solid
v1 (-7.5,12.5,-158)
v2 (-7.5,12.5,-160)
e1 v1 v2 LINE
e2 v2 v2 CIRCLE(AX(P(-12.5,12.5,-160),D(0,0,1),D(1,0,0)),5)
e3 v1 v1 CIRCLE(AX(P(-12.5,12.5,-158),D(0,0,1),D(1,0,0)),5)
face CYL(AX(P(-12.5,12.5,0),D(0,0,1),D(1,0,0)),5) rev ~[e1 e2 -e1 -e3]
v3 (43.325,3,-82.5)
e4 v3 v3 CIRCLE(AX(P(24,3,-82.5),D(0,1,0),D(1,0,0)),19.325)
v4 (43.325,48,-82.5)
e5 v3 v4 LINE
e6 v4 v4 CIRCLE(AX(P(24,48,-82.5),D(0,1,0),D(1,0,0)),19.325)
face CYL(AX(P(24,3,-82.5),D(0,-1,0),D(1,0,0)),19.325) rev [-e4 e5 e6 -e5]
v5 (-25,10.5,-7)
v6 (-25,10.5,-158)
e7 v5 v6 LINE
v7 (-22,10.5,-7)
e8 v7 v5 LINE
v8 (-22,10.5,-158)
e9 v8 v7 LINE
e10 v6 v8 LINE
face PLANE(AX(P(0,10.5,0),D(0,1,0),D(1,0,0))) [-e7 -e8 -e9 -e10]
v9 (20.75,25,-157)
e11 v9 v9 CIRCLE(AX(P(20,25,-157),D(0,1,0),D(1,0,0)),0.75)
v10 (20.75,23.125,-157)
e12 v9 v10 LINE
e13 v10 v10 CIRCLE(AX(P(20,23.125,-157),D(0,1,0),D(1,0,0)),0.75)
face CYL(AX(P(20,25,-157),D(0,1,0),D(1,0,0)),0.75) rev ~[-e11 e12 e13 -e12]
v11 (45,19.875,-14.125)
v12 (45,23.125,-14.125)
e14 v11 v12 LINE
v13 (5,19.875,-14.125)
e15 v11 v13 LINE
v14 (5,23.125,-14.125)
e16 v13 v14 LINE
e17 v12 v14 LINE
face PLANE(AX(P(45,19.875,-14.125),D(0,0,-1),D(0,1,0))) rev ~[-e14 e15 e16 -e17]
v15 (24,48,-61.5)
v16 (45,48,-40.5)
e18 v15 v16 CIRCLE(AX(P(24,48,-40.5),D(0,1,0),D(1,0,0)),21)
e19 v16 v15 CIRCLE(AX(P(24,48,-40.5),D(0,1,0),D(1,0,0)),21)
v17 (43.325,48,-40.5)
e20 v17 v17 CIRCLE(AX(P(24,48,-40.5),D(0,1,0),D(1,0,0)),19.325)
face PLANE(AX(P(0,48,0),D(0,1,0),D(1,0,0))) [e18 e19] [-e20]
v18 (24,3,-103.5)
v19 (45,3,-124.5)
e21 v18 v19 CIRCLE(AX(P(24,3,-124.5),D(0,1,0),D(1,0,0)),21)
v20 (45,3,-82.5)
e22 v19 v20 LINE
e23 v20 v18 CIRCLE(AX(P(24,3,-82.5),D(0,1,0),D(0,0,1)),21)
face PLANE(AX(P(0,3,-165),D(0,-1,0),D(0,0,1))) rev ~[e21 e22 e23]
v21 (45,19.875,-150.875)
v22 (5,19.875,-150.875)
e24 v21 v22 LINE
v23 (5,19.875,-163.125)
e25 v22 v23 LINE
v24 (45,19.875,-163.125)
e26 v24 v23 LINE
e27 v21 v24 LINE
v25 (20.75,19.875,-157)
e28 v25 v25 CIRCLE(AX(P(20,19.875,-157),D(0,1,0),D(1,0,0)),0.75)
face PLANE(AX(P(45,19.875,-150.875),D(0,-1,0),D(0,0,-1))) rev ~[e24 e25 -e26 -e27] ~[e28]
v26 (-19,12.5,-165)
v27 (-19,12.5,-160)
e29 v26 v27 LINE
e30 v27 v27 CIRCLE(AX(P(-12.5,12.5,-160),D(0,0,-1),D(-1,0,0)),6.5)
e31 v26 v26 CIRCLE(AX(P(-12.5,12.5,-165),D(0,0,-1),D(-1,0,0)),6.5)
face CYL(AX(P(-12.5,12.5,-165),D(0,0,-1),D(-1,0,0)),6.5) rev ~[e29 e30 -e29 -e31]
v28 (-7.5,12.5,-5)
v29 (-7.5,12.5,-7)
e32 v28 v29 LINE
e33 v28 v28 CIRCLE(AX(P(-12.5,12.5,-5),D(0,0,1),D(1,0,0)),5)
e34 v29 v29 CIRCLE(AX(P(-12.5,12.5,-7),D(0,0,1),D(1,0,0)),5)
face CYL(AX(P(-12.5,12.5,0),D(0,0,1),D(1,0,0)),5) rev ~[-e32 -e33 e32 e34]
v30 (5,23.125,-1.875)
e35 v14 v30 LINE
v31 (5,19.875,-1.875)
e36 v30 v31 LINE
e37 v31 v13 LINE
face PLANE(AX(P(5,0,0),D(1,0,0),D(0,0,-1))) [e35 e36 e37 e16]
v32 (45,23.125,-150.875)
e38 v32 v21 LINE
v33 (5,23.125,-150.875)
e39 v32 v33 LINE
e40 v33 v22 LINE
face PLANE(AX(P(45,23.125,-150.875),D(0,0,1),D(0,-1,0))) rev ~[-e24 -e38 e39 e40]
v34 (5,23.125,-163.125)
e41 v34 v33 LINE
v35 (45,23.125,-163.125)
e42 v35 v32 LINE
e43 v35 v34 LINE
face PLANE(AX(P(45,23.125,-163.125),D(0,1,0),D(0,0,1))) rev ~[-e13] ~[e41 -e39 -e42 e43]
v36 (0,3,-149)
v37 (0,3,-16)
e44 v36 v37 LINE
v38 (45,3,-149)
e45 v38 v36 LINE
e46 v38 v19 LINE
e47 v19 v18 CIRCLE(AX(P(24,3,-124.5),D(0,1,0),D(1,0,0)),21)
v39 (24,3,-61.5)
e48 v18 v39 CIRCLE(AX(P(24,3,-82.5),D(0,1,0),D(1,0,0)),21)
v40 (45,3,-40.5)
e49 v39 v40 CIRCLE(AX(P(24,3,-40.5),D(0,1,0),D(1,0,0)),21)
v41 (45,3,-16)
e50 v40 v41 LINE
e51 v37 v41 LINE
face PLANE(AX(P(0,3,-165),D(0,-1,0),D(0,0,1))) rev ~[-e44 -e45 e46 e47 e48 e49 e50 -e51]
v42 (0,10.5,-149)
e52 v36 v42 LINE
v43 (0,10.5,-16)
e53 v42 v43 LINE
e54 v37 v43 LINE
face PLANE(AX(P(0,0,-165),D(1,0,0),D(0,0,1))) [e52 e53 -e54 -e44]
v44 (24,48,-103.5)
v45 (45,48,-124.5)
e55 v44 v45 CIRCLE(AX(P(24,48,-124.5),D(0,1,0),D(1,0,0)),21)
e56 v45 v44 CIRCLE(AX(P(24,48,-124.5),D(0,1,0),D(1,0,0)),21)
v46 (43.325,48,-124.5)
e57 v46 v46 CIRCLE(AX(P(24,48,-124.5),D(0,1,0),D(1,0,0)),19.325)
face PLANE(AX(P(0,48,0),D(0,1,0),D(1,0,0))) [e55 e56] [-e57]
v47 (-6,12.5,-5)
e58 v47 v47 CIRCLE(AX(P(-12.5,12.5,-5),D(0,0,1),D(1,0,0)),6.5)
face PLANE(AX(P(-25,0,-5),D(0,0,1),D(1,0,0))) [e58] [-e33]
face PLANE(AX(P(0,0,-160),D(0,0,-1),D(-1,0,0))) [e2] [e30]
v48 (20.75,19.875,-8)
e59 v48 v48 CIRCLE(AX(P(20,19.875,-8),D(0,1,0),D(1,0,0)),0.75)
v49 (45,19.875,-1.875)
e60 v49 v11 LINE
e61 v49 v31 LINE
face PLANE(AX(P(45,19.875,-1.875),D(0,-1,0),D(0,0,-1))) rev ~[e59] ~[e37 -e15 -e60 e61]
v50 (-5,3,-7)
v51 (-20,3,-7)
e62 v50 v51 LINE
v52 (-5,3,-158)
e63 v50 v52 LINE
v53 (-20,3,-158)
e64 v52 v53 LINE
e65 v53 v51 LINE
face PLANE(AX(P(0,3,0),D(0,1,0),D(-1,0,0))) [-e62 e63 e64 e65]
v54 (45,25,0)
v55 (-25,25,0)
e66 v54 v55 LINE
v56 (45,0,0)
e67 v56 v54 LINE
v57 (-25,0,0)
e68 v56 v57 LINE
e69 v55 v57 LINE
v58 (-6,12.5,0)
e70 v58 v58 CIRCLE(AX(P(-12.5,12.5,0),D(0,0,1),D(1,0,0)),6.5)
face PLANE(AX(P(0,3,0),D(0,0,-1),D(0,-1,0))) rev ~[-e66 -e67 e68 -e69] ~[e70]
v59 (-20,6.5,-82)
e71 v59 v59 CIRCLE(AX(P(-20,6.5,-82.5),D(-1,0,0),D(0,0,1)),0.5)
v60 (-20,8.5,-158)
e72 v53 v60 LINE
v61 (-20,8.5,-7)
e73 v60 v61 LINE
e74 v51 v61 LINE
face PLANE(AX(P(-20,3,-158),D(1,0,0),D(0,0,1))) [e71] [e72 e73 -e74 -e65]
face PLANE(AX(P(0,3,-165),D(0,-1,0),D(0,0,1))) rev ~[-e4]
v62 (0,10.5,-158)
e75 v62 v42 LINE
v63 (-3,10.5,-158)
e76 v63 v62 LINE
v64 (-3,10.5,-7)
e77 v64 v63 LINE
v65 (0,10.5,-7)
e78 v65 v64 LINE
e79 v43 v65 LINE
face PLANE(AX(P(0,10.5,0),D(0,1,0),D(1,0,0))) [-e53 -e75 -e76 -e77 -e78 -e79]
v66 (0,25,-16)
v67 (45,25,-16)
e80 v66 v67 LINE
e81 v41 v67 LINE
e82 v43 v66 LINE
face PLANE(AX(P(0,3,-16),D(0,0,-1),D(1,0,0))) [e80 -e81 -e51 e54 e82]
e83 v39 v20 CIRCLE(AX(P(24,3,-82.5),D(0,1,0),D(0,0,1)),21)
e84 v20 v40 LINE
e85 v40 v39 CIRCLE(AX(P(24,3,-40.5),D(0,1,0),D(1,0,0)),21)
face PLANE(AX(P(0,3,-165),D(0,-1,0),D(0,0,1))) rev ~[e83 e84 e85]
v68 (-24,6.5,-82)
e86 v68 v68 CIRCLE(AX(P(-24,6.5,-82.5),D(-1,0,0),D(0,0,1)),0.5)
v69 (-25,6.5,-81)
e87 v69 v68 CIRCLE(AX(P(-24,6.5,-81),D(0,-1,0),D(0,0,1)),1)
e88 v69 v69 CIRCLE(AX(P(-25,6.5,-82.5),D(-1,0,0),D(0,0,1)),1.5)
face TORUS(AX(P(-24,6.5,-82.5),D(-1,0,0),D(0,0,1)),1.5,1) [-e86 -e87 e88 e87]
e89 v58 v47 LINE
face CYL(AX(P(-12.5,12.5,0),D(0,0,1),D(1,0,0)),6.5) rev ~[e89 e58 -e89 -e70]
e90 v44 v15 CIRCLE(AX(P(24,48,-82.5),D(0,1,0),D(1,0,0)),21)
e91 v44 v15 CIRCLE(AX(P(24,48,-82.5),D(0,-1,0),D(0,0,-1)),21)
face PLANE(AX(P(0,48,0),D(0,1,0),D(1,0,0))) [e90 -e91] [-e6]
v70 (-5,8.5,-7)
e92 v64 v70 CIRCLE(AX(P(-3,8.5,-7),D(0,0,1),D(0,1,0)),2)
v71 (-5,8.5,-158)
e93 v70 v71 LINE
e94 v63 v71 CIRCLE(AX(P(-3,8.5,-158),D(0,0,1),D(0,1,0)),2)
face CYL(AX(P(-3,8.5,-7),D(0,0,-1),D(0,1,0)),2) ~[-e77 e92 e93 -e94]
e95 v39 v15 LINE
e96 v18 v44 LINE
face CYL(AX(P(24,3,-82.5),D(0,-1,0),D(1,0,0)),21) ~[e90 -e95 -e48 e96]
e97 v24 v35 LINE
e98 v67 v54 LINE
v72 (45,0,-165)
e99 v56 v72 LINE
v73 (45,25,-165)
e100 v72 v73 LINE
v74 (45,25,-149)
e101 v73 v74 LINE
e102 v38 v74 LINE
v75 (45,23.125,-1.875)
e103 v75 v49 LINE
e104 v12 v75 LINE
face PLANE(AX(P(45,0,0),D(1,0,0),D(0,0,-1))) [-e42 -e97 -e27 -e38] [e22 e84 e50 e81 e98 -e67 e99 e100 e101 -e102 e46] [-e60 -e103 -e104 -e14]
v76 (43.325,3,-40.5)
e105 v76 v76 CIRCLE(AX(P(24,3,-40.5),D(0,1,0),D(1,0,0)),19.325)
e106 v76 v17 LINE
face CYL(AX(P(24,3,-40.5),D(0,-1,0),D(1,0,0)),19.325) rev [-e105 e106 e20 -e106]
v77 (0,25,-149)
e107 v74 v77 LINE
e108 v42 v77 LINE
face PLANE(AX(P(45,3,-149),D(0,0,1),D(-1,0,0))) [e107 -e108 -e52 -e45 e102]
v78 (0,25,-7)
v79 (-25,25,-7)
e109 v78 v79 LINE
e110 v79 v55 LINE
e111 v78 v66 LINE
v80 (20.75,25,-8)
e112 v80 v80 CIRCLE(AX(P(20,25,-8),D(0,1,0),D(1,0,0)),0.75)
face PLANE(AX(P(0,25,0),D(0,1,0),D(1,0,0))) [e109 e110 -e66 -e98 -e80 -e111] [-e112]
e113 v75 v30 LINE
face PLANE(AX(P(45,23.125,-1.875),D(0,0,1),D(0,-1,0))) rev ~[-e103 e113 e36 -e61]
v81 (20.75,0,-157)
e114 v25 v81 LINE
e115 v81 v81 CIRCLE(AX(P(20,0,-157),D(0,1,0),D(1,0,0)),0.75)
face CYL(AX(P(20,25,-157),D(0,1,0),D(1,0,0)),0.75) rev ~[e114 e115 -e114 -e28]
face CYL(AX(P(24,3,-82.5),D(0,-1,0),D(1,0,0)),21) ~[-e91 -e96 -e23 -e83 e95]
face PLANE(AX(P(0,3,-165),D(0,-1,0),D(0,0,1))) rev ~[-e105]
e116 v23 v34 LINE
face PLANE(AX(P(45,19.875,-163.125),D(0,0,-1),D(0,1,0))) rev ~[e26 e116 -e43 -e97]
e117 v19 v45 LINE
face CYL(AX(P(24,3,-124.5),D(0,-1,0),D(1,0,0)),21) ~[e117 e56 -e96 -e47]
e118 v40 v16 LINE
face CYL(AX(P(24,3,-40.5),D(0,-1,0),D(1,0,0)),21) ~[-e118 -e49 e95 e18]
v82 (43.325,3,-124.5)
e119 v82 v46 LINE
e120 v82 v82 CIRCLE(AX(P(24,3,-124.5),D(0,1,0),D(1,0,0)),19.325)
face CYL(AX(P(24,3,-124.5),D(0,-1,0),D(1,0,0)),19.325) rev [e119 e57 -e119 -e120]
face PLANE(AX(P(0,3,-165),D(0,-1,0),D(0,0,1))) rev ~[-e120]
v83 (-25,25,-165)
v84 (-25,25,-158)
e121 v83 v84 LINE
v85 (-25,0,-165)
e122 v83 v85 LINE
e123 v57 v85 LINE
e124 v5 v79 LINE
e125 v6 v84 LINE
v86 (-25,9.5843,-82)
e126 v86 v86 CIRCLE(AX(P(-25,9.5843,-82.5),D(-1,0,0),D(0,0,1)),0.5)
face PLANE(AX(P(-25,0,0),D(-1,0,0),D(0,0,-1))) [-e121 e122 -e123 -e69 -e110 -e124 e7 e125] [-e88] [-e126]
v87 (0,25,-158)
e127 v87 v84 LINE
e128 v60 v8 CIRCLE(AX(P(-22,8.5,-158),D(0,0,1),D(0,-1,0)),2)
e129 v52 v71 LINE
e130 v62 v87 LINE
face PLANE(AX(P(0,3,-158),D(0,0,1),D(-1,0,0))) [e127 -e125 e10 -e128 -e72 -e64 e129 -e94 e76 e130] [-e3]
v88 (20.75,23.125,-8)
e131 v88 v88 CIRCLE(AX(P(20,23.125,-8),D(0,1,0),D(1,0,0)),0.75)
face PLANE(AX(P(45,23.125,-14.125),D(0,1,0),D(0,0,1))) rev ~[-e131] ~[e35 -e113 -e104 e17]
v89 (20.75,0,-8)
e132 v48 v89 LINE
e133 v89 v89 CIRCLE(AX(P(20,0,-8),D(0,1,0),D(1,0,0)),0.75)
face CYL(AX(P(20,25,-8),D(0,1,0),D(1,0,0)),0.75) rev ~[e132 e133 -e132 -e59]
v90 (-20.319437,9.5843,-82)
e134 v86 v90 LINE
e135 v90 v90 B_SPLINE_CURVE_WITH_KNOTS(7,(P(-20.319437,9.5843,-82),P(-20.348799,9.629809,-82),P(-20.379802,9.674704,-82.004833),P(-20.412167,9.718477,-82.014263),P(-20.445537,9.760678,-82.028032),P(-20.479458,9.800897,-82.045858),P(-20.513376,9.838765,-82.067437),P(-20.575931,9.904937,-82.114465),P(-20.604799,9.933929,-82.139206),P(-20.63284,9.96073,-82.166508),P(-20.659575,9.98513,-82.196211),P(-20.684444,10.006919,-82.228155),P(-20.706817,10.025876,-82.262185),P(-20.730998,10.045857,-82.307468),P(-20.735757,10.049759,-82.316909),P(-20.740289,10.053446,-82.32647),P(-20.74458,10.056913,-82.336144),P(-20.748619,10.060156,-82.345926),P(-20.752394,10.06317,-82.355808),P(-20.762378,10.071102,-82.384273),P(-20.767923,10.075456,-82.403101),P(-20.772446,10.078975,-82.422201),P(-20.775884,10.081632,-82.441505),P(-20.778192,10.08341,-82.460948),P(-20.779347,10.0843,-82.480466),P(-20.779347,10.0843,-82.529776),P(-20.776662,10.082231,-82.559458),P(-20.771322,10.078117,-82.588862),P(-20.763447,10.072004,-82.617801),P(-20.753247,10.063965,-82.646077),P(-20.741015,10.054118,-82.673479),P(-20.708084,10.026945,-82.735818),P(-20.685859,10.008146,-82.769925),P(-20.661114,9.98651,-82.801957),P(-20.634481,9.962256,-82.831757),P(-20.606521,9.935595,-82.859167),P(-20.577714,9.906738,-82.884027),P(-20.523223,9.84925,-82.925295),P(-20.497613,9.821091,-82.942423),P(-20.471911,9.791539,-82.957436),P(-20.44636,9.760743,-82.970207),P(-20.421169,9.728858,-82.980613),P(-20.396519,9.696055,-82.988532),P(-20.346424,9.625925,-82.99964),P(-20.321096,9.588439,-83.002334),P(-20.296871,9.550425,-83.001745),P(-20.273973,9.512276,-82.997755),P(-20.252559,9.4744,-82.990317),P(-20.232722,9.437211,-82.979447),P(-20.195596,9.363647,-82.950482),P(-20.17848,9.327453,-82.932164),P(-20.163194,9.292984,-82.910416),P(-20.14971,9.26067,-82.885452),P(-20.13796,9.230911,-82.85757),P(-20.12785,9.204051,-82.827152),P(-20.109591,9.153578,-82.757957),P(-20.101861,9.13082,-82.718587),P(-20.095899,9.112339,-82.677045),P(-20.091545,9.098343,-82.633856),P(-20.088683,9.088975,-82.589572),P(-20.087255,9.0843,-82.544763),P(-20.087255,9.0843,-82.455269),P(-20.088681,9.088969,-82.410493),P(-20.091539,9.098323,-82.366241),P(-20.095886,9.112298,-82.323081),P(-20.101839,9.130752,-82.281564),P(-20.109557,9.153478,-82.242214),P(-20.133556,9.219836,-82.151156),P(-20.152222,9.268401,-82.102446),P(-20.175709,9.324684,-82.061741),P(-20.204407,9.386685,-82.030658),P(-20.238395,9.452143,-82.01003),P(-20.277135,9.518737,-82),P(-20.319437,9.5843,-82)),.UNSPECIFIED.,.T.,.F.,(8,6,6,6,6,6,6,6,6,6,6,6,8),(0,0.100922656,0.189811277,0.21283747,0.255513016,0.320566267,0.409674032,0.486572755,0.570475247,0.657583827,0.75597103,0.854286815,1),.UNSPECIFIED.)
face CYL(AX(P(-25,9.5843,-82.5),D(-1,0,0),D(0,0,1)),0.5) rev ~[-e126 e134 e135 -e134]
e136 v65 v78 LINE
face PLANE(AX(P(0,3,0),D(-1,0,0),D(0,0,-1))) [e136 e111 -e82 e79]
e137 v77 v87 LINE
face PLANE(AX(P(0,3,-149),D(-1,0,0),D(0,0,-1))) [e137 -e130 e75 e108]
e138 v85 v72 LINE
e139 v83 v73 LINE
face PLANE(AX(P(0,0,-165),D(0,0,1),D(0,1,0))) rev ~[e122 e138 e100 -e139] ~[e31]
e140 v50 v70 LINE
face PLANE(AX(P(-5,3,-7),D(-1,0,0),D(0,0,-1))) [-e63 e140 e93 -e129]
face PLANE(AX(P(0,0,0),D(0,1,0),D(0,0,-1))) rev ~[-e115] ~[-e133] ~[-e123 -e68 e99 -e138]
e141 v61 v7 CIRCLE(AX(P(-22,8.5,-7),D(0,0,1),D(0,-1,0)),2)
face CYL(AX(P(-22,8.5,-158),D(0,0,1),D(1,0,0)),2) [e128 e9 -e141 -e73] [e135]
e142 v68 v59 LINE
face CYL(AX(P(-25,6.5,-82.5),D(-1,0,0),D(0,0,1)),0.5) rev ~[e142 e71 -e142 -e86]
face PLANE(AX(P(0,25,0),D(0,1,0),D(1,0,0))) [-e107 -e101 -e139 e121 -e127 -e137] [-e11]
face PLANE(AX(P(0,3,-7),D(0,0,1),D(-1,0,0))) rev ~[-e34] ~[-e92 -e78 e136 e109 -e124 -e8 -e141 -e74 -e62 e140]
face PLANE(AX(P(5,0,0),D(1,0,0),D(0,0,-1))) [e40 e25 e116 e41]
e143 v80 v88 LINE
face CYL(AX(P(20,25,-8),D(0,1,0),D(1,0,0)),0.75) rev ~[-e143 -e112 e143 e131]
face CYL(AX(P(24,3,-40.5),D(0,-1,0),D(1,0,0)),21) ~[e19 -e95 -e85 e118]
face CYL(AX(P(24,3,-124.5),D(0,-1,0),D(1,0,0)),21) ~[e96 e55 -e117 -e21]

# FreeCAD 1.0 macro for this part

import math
import FreeCAD as App
import Part
import Sketcher
from FreeCAD import Vector


def edges_at(feature, points):
    """Names of the edges that pass closest to the given points."""
    edges = feature.Shape.Edges
    near = lambda p: min(range(len(edges)), key=lambda i: edges[i].distToShape(Part.Vertex(*p))[0])
    return sorted({f"Edge{near(p) + 1}" for p in points})

doc = App.newDocument("Part")
params = doc.addObject("Spreadsheet::Sheet", "Params")
for row, (alias, value) in enumerate([
    ("sketch1_width", "25 mm"),
    ("sketch1_height", "165 mm"),
    ("pad1_length", "3 mm"),
    ("sketch2_height", "7 mm"),
    ("sketch2_width", "25 mm"),
    ("pad2_length", "22 mm"),
    ("sketch3_diameter", "13 mm"),
    ("pocket1_length", "5 mm"),
    ("sketch4_diameter", "13 mm"),
    ("pocket2_length", "5 mm"),
    ("sketch5_diameter", "10 mm"),
    ("pocket3_length", "165 mm"),
    ("sketch6_width", "5 mm"),
    ("sketch6_height", "151 mm"),
    ("pad3_length", "7.5 mm"),
    ("fillet_radius", "2 mm"),
    ("sketch7_width", "3 mm"),
    ("sketch7_height", "165 mm"),
    ("pad4_length", "45 mm"),
    ("sketch8_diameter", "42 mm"),
    ("sketch8_diameter2", "38.65 mm"),
    ("pad5_length", "45 mm"),
    ("sketch9_height", "16 mm"),
    ("sketch9_width", "45 mm"),
    ("pad6_length", "22 mm"),
    ("sketch10_width", "3.25 mm"),
    ("sketch10_height", "12.25 mm"),
    ("pocket4_length", "40 mm"),
    ("sketch11_width", "3.25 mm"),
    ("sketch11_height", "12.25 mm"),
    ("pocket5_length", "40 mm"),
    ("sketch12_diameter", "1.5 mm"),
    ("pocket6_length", "25 mm"),
    ("sketch13_diameter", "1.5 mm"),
    ("pocket7_length", "25 mm"),
    ("sketch14_diameter", "1 mm"),
    ("pocket8_length", "5.25 mm"),
    ("fillet2_radius", "1 mm"),
    ("sketch15_diameter", "1 mm"),
    ("pocket9_length", "5.25 mm"),
], start=1):
    params.set(f"A{row}", alias)
    params.set(f"B{row}", "=" + value)
    params.setAlias(f"B{row}", alias)

body = doc.addObject("PartDesign::Body", "Body")

# Sketch on XZ plane
sketch1 = body.newObject("Sketcher::SketchObject", "Sketch")
sketch1.AttachmentSupport = (doc.getObject("XZ_Plane"), [""])
sketch1.MapMode = "FlatFace"
sketch1.addGeometry([
    Part.LineSegment(Vector(-25, 0, 0), Vector(0, 0, 0)),
    Part.LineSegment(Vector(0, 0, 0), Vector(0, -165, 0)),
    Part.LineSegment(Vector(0, -165, 0), Vector(-25, -165, 0)),
    Part.LineSegment(Vector(-25, -165, 0), Vector(-25, 0, 0)),
], False)
sketch1.addConstraint([
    Sketcher.Constraint("Coincident", 0, 2, 1, 1),
    Sketcher.Constraint("Coincident", 1, 2, 2, 1),
    Sketcher.Constraint("Coincident", 2, 2, 3, 1),
    Sketcher.Constraint("Coincident", 3, 2, 0, 1),
    Sketcher.Constraint("Horizontal", 0),
    Sketcher.Constraint("Vertical", 1),
    Sketcher.Constraint("Horizontal", 2),
    Sketcher.Constraint("Vertical", 3),
    Sketcher.Constraint("Coincident", 0, 2, -1, 1),
    Sketcher.Constraint("DistanceX", 0, 1, 0, 2, 25.0),
    Sketcher.Constraint("DistanceY", 1, 2, 1, 1, 165.0),
])
sketch1.setExpression("Constraints[9]", "Params.sketch1_width")
sketch1.setExpression("Constraints[10]", "Params.sketch1_height")
pad1 = body.newObject("PartDesign::Pad", "Pad")
pad1.Profile = sketch1
pad1.setExpression("Length", "Params.pad1_length")
pad1.Reversed = True

# Sketch on XZ plane
sketch2 = body.newObject("Sketcher::SketchObject", "Sketch001")
sketch2.AttachmentSupport = (doc.getObject("XZ_Plane"), [""])
sketch2.MapMode = "FlatFace"
sketch2.AttachmentOffset = App.Placement(Vector(0, 0, -3), App.Rotation())
sketch2.addGeometry([
    Part.LineSegment(Vector(0, -165, 0), Vector(-25, -165, 0)),  # 0
    Part.LineSegment(Vector(-25, -165, 0), Vector(-25, -158, 0)),  # 1
    Part.LineSegment(Vector(-25, -158, 0), Vector(0, -158, 0)),  # 2
    Part.LineSegment(Vector(0, -158, 0), Vector(0, -165, 0)),  # 3
    Part.LineSegment(Vector(0, -7, 0), Vector(-25, -7, 0)),  # 4
    Part.LineSegment(Vector(-25, -7, 0), Vector(-25, 0, 0)),  # 5
    Part.LineSegment(Vector(-25, 0, 0), Vector(0, 0, 0)),  # 6
    Part.LineSegment(Vector(0, 0, 0), Vector(0, -7, 0)),  # 7
], False)
sketch2.addConstraint([
    Sketcher.Constraint("Coincident", 0, 2, 1, 1),
    Sketcher.Constraint("Coincident", 1, 2, 2, 1),
    Sketcher.Constraint("Coincident", 2, 2, 3, 1),
    Sketcher.Constraint("Coincident", 3, 2, 0, 1),
    Sketcher.Constraint("Coincident", 4, 2, 5, 1),
    Sketcher.Constraint("Coincident", 5, 2, 6, 1),
    Sketcher.Constraint("Coincident", 6, 2, 7, 1),
    Sketcher.Constraint("Coincident", 7, 2, 4, 1),
    Sketcher.Constraint("Horizontal", 0),
    Sketcher.Constraint("Vertical", 1),
    Sketcher.Constraint("Horizontal", 2),
    Sketcher.Constraint("Vertical", 3),
    Sketcher.Constraint("Horizontal", 4),
    Sketcher.Constraint("Vertical", 5),
    Sketcher.Constraint("Horizontal", 6),
    Sketcher.Constraint("Vertical", 7),
    Sketcher.Constraint("Coincident", 6, 2, -1, 1),
    Sketcher.Constraint("PointOnObject", 2, 2, -2),
    Sketcher.Constraint("Vertical", 1, 2, 4, 2),
    Sketcher.Constraint("Equal", 3, 5),
    Sketcher.Constraint("DistanceY", 1, 1, 1, 2, 7.0),
    Sketcher.Constraint("DistanceX", 0, 2, 0, 1, 25.0),
    Sketcher.Constraint("DistanceY", 0, 2, -1, 1, 165.0),
])
sketch2.setExpression("Constraints[20]", "Params.sketch2_height")
sketch2.setExpression("Constraints[21]", "Params.sketch2_width")
pad2 = body.newObject("PartDesign::Pad", "Pad001")
pad2.Profile = sketch2
pad2.setExpression("Length", "Params.pad2_length")
pad2.Reversed = True

# Sketch on XY plane
sketch3 = body.newObject("Sketcher::SketchObject", "Sketch002")
sketch3.AttachmentSupport = (doc.getObject("XY_Plane"), [""])
sketch3.MapMode = "FlatFace"
sketch3.addGeometry(Part.Circle(Vector(-12, 12, 0), Vector(0, 0, 1), 6), False)
sketch3.addConstraint([
    Sketcher.Constraint("Diameter", 0, 13.0),
    Sketcher.Constraint("DistanceX", 0, 3, -1, 1, 12.5),
    Sketcher.Constraint("DistanceY", -1, 1, 0, 3, 12.5),
])
sketch3.setExpression("Constraints[0]", "Params.sketch3_diameter")
pocket1 = body.newObject("PartDesign::Pocket", "Pocket")
pocket1.Profile = sketch3
pocket1.setExpression("Length", "Params.pocket1_length")

# Sketch on XY plane
sketch4 = body.newObject("Sketcher::SketchObject", "Sketch003")
sketch4.AttachmentSupport = (doc.getObject("XY_Plane"), [""])
sketch4.MapMode = "FlatFace"
sketch4.AttachmentOffset = App.Placement(Vector(0, 0, -165), App.Rotation())
sketch4.addGeometry(Part.Circle(Vector(-12, 12, 0), Vector(0, 0, 1), 6), False)
sketch4.addConstraint([
    Sketcher.Constraint("Diameter", 0, 13.0),
    Sketcher.Constraint("DistanceX", 0, 3, -1, 1, 12.5),
    Sketcher.Constraint("DistanceY", -1, 1, 0, 3, 12.5),
])
sketch4.setExpression("Constraints[0]", "Params.sketch4_diameter")
pocket2 = body.newObject("PartDesign::Pocket", "Pocket001")
pocket2.Profile = sketch4
pocket2.setExpression("Length", "Params.pocket2_length")
pocket2.Reversed = True

# Sketch on XY plane
sketch5 = body.newObject("Sketcher::SketchObject", "Sketch004")
sketch5.AttachmentSupport = (doc.getObject("XY_Plane"), [""])
sketch5.MapMode = "FlatFace"
sketch5.addGeometry(Part.Circle(Vector(-12, 12, 0), Vector(0, 0, 1), 5), False)
sketch5.addConstraint([
    Sketcher.Constraint("Diameter", 0, 10.0),
    Sketcher.Constraint("DistanceX", 0, 3, -1, 1, 12.5),
    Sketcher.Constraint("DistanceY", -1, 1, 0, 3, 12.5),
])
sketch5.setExpression("Constraints[0]", "Params.sketch5_diameter")
pocket3 = body.newObject("PartDesign::Pocket", "Pocket002")
pocket3.Profile = sketch5
pocket3.setExpression("Length", "Params.pocket3_length")

# Sketch on XZ plane
sketch6 = body.newObject("Sketcher::SketchObject", "Sketch005")
sketch6.AttachmentSupport = (doc.getObject("XZ_Plane"), [""])
sketch6.MapMode = "FlatFace"
sketch6.AttachmentOffset = App.Placement(Vector(0, 0, -3), App.Rotation())
sketch6.addGeometry([
    Part.LineSegment(Vector(-20, -158, 0), Vector(-25, -158, 0)),  # 0
    Part.LineSegment(Vector(-25, -158, 0), Vector(-25, -7, 0)),  # 1
    Part.LineSegment(Vector(-25, -7, 0), Vector(-20, -7, 0)),  # 2
    Part.LineSegment(Vector(-20, -7, 0), Vector(-20, -158, 0)),  # 3
    Part.LineSegment(Vector(0, -158, 0), Vector(-5, -158, 0)),  # 4
    Part.LineSegment(Vector(-5, -158, 0), Vector(-5, -7, 0)),  # 5
    Part.LineSegment(Vector(-5, -7, 0), Vector(0, -7, 0)),  # 6
    Part.LineSegment(Vector(0, -7, 0), Vector(0, -158, 0)),  # 7
], False)
sketch6.addConstraint([
    Sketcher.Constraint("Coincident", 0, 2, 1, 1),
    Sketcher.Constraint("Coincident", 1, 2, 2, 1),
    Sketcher.Constraint("Coincident", 2, 2, 3, 1),
    Sketcher.Constraint("Coincident", 3, 2, 0, 1),
    Sketcher.Constraint("Coincident", 4, 2, 5, 1),
    Sketcher.Constraint("Coincident", 5, 2, 6, 1),
    Sketcher.Constraint("Coincident", 6, 2, 7, 1),
    Sketcher.Constraint("Coincident", 7, 2, 4, 1),
    Sketcher.Constraint("Horizontal", 0),
    Sketcher.Constraint("Vertical", 1),
    Sketcher.Constraint("Horizontal", 2),
    Sketcher.Constraint("Vertical", 3),
    Sketcher.Constraint("Horizontal", 4),
    Sketcher.Constraint("Vertical", 5),
    Sketcher.Constraint("Horizontal", 6),
    Sketcher.Constraint("Vertical", 7),
    Sketcher.Constraint("PointOnObject", 6, 2, -2),
    Sketcher.Constraint("Horizontal", 3, 2, 4, 2),
    Sketcher.Constraint("Horizontal", 2, 2, 5, 2),
    Sketcher.Constraint("Equal", 2, 4),
    Sketcher.Constraint("DistanceX", 0, 2, 0, 1, 5.0),
    Sketcher.Constraint("DistanceY", 1, 1, 1, 2, 151.0),
    Sketcher.Constraint("DistanceX", 0, 2, -1, 1, 25.0),
    Sketcher.Constraint("DistanceY", 0, 2, -1, 1, 158.0),
])
sketch6.setExpression("Constraints[20]", "Params.sketch6_width")
sketch6.setExpression("Constraints[21]", "Params.sketch6_height")
pad3 = body.newObject("PartDesign::Pad", "Pad002")
pad3.Profile = sketch6
pad3.setExpression("Length", "Params.pad3_length")
pad3.Reversed = True
doc.recompute()

fillet = body.newObject("PartDesign::Fillet", "Fillet")
fillet.Base = (pad3, edges_at(pad3, [(-5, 10.5, -82.5), (-20, 10.5, -82.5)]))
fillet.setExpression("Radius", "Params.fillet_radius")

# Sketch on YZ plane
sketch7 = body.newObject("Sketcher::SketchObject", "Sketch006")
sketch7.AttachmentSupport = (doc.getObject("YZ_Plane"), [""])
sketch7.MapMode = "FlatFace"
sketch7.addGeometry([
    Part.LineSegment(Vector(0, 0, 0), Vector(0, -165, 0)),
    Part.LineSegment(Vector(0, -165, 0), Vector(3, -165, 0)),
    Part.LineSegment(Vector(3, -165, 0), Vector(3, 0, 0)),
    Part.LineSegment(Vector(3, 0, 0), Vector(0, 0, 0)),
], False)
sketch7.addConstraint([
    Sketcher.Constraint("Coincident", 0, 2, 1, 1),
    Sketcher.Constraint("Coincident", 1, 2, 2, 1),
    Sketcher.Constraint("Coincident", 2, 2, 3, 1),
    Sketcher.Constraint("Coincident", 3, 2, 0, 1),
    Sketcher.Constraint("Vertical", 0),
    Sketcher.Constraint("Horizontal", 1),
    Sketcher.Constraint("Vertical", 2),
    Sketcher.Constraint("Horizontal", 3),
    Sketcher.Constraint("Coincident", 3, 2, -1, 1),
    Sketcher.Constraint("DistanceX", 1, 1, 1, 2, 3.0),
    Sketcher.Constraint("DistanceY", 0, 2, 0, 1, 165.0),
])
sketch7.setExpression("Constraints[9]", "Params.sketch7_width")
sketch7.setExpression("Constraints[10]", "Params.sketch7_height")
pad4 = body.newObject("PartDesign::Pad", "Pad003")
pad4.Profile = sketch7
pad4.setExpression("Length", "Params.pad4_length")

# Sketch on XZ plane
sketch8 = body.newObject("Sketcher::SketchObject", "Sketch007")
sketch8.AttachmentSupport = (doc.getObject("XZ_Plane"), [""])
sketch8.MapMode = "FlatFace"
sketch8.AttachmentOffset = App.Placement(Vector(0, 0, -3), App.Rotation())
sketch8.addGeometry([
    Part.Circle(Vector(24, -124, 0), Vector(0, 0, 1), 21),  # 0
    Part.Circle(Vector(24, -124, 0), Vector(0, 0, 1), 19),  # 1
    Part.Circle(Vector(24, -40, 0), Vector(0, 0, 1), 21),  # 2
    Part.Circle(Vector(24, -40, 0), Vector(0, 0, 1), 19),  # 3
    Part.ArcOfCircle(Part.Circle(Vector(24, -82, 0), Vector(0, 0, 1), 21), math.radians(-90), math.radians(90)),  # 4
    Part.ArcOfCircle(Part.Circle(Vector(24, -82, 0), Vector(0, 0, 1), 21), math.radians(90), math.radians(270)),  # 5
    Part.Circle(Vector(24, -82, 0), Vector(0, 0, 1), 19),  # 6
], False)
sketch8.addConstraint([
    Sketcher.Constraint("Tangent", 4, 1, 5, 2),
    Sketcher.Constraint("Coincident", 5, 1, 4, 2),
    Sketcher.Constraint("Coincident", 1, 3, 0, 3),
    Sketcher.Constraint("Coincident", 3, 3, 2, 3),
    Sketcher.Constraint("Coincident", 6, 3, 4, 3),
    Sketcher.Constraint("Equal", 0, 2),
    Sketcher.Constraint("Equal", 1, 3),
    Sketcher.Constraint("Equal", 2, 4),
    Sketcher.Constraint("Equal", 3, 6),
    Sketcher.Constraint("Vertical", 1, 3, 2, 3),
    Sketcher.Constraint("Vertical", 3, 3, 4, 3),
    Sketcher.Constraint("Vertical", 6, 3, 4, 1),
    Sketcher.Constraint("Vertical", 4, 1, 5, 1),
    Sketcher.Constraint("Diameter", 0, 42.0),
    Sketcher.Constraint("Diameter", 1, 38.65),
    Sketcher.Constraint("DistanceY", 0, 3, 4, 3, 42.0),
    Sketcher.Constraint("DistanceY", 4, 3, 2, 3, 42.0),
    Sketcher.Constraint("DistanceX", -1, 1, 0, 3, 24.0),
    Sketcher.Constraint("DistanceY", 0, 3, -1, 1, 124.5),
])
sketch8.setExpression("Constraints[13]", "Params.sketch8_diameter")
sketch8.setExpression("Constraints[14]", "Params.sketch8_diameter2")
pad5 = body.newObject("PartDesign::Pad", "Pad004")
pad5.Profile = sketch8
pad5.setExpression("Length", "Params.pad5_length")
pad5.Reversed = True

# Sketch on XZ plane
sketch9 = body.newObject("Sketcher::SketchObject", "Sketch008")
sketch9.AttachmentSupport = (doc.getObject("XZ_Plane"), [""])
sketch9.MapMode = "FlatFace"
sketch9.AttachmentOffset = App.Placement(Vector(0, 0, -3), App.Rotation())
sketch9.addGeometry([
    Part.LineSegment(Vector(0, -165, 0), Vector(0, -149, 0)),  # 0
    Part.LineSegment(Vector(0, -149, 0), Vector(45, -149, 0)),  # 1
    Part.LineSegment(Vector(45, -149, 0), Vector(45, -165, 0)),  # 2
    Part.LineSegment(Vector(45, -165, 0), Vector(0, -165, 0)),  # 3
    Part.LineSegment(Vector(45, 0, 0), Vector(45, -16, 0)),  # 4
    Part.LineSegment(Vector(45, -16, 0), Vector(0, -16, 0)),  # 5
    Part.LineSegment(Vector(0, -16, 0), Vector(0, 0, 0)),  # 6
    Part.LineSegment(Vector(0, 0, 0), Vector(45, 0, 0)),  # 7
], False)
sketch9.addConstraint([
    Sketcher.Constraint("Coincident", 0, 2, 1, 1),
    Sketcher.Constraint("Coincident", 1, 2, 2, 1),
    Sketcher.Constraint("Coincident", 2, 2, 3, 1),
    Sketcher.Constraint("Coincident", 3, 2, 0, 1),
    Sketcher.Constraint("Coincident", 4, 2, 5, 1),
    Sketcher.Constraint("Coincident", 5, 2, 6, 1),
    Sketcher.Constraint("Coincident", 6, 2, 7, 1),
    Sketcher.Constraint("Coincident", 7, 2, 4, 1),
    Sketcher.Constraint("Vertical", 0),
    Sketcher.Constraint("Horizontal", 1),
    Sketcher.Constraint("Vertical", 2),
    Sketcher.Constraint("Horizontal", 3),
    Sketcher.Constraint("Vertical", 4),
    Sketcher.Constraint("Horizontal", 5),
    Sketcher.Constraint("Vertical", 6),
    Sketcher.Constraint("Horizontal", 7),
    Sketcher.Constraint("Coincident", 6, 2, -1, 1),
    Sketcher.Constraint("PointOnObject", 0, 2, -2),
    Sketcher.Constraint("Vertical", 2, 2, 4, 2),
    Sketcher.Constraint("Equal", 2, 4),
    Sketcher.Constraint("DistanceY", 0, 1, 0, 2, 16.0),
    Sketcher.Constraint("DistanceX", 1, 1, 1, 2, 45.0),
    Sketcher.Constraint("DistanceY", 0, 2, -1, 1, 149.0),
])
sketch9.setExpression("Constraints[20]", "Params.sketch9_height")
sketch9.setExpression("Constraints[21]", "Params.sketch9_width")
pad6 = body.newObject("PartDesign::Pad", "Pad005")
pad6.Profile = sketch9
pad6.setExpression("Length", "Params.pad6_length")
pad6.Reversed = True

# Sketch on YZ plane
sketch10 = body.newObject("Sketcher::SketchObject", "Sketch009")
sketch10.AttachmentSupport = (doc.getObject("YZ_Plane"), [""])
sketch10.MapMode = "FlatFace"
sketch10.AttachmentOffset = App.Placement(Vector(0, 0, 45), App.Rotation())
sketch10.addGeometry([
    Part.LineSegment(Vector(19.9, -14.1, 0), Vector(23.1, -14.1, 0)),
    Part.LineSegment(Vector(23.1, -14.1, 0), Vector(23.1, -1.9, 0)),
    Part.LineSegment(Vector(23.1, -1.9, 0), Vector(19.9, -1.9, 0)),
    Part.LineSegment(Vector(19.9, -1.9, 0), Vector(19.9, -14.1, 0)),
], False)
sketch10.addConstraint([
    Sketcher.Constraint("Coincident", 0, 2, 1, 1),
    Sketcher.Constraint("Coincident", 1, 2, 2, 1),
    Sketcher.Constraint("Coincident", 2, 2, 3, 1),
    Sketcher.Constraint("Coincident", 3, 2, 0, 1),
    Sketcher.Constraint("Horizontal", 0),
    Sketcher.Constraint("Vertical", 1),
    Sketcher.Constraint("Horizontal", 2),
    Sketcher.Constraint("Vertical", 3),
    Sketcher.Constraint("DistanceX", 0, 1, 0, 2, 3.25),
    Sketcher.Constraint("DistanceY", 1, 1, 1, 2, 12.25),
    Sketcher.Constraint("DistanceX", -1, 1, 0, 2, 23.125),
    Sketcher.Constraint("DistanceY", 0, 2, -1, 1, 14.125),
])
sketch10.setExpression("Constraints[8]", "Params.sketch10_width")
sketch10.setExpression("Constraints[9]", "Params.sketch10_height")
pocket4 = body.newObject("PartDesign::Pocket", "Pocket003")
pocket4.Profile = sketch10
pocket4.setExpression("Length", "Params.pocket4_length")

# Sketch on YZ plane
sketch11 = body.newObject("Sketcher::SketchObject", "Sketch010")
sketch11.AttachmentSupport = (doc.getObject("YZ_Plane"), [""])
sketch11.MapMode = "FlatFace"
sketch11.AttachmentOffset = App.Placement(Vector(0, 0, 45), App.Rotation())
sketch11.addGeometry([
    Part.LineSegment(Vector(19.9, -163.1, 0), Vector(23.1, -163.1, 0)),
    Part.LineSegment(Vector(23.1, -163.1, 0), Vector(23.1, -150.9, 0)),
    Part.LineSegment(Vector(23.1, -150.9, 0), Vector(19.9, -150.9, 0)),
    Part.LineSegment(Vector(19.9, -150.9, 0), Vector(19.9, -163.1, 0)),
], False)
sketch11.addConstraint([
    Sketcher.Constraint("Coincident", 0, 2, 1, 1),
    Sketcher.Constraint("Coincident", 1, 2, 2, 1),
    Sketcher.Constraint("Coincident", 2, 2, 3, 1),
    Sketcher.Constraint("Coincident", 3, 2, 0, 1),
    Sketcher.Constraint("Horizontal", 0),
    Sketcher.Constraint("Vertical", 1),
    Sketcher.Constraint("Horizontal", 2),
    Sketcher.Constraint("Vertical", 3),
    Sketcher.Constraint("DistanceX", 0, 1, 0, 2, 3.25),
    Sketcher.Constraint("DistanceY", 1, 1, 1, 2, 12.25),
    Sketcher.Constraint("DistanceX", -1, 1, 0, 2, 23.125),
    Sketcher.Constraint("DistanceY", 0, 2, -1, 1, 163.125),
])
sketch11.setExpression("Constraints[8]", "Params.sketch11_width")
sketch11.setExpression("Constraints[9]", "Params.sketch11_height")
pocket5 = body.newObject("PartDesign::Pocket", "Pocket004")
pocket5.Profile = sketch11
pocket5.setExpression("Length", "Params.pocket5_length")

# Sketch on XZ plane
sketch12 = body.newObject("Sketcher::SketchObject", "Sketch011")
sketch12.AttachmentSupport = (doc.getObject("XZ_Plane"), [""])
sketch12.MapMode = "FlatFace"
sketch12.AttachmentOffset = App.Placement(Vector(0, 0, -25), App.Rotation())
sketch12.addGeometry(Part.Circle(Vector(20, -8, 0), Vector(0, 0, 1), 0.8), False)
sketch12.addConstraint([
    Sketcher.Constraint("Diameter", 0, 1.5),
    Sketcher.Constraint("DistanceX", -1, 1, 0, 3, 20.0),
    Sketcher.Constraint("DistanceY", 0, 3, -1, 1, 8.0),
])
sketch12.setExpression("Constraints[0]", "Params.sketch12_diameter")
pocket6 = body.newObject("PartDesign::Pocket", "Pocket005")
pocket6.Profile = sketch12
pocket6.setExpression("Length", "Params.pocket6_length")
pocket6.Reversed = True

# Sketch on XZ plane
sketch13 = body.newObject("Sketcher::SketchObject", "Sketch012")
sketch13.AttachmentSupport = (doc.getObject("XZ_Plane"), [""])
sketch13.MapMode = "FlatFace"
sketch13.AttachmentOffset = App.Placement(Vector(0, 0, -25), App.Rotation())
sketch13.addGeometry(Part.Circle(Vector(20, -157, 0), Vector(0, 0, 1), 0.8), False)
sketch13.addConstraint([
    Sketcher.Constraint("Diameter", 0, 1.5),
    Sketcher.Constraint("DistanceX", -1, 1, 0, 3, 20.0),
    Sketcher.Constraint("DistanceY", 0, 3, -1, 1, 157.0),
])
sketch13.setExpression("Constraints[0]", "Params.sketch13_diameter")
pocket7 = body.newObject("PartDesign::Pocket", "Pocket006")
pocket7.Profile = sketch13
pocket7.setExpression("Length", "Params.pocket7_length")
pocket7.Reversed = True

# Sketch on YZ plane
sketch14 = body.newObject("Sketcher::SketchObject", "Sketch013")
sketch14.AttachmentSupport = (doc.getObject("YZ_Plane"), [""])
sketch14.MapMode = "FlatFace"
sketch14.AttachmentOffset = App.Placement(Vector(0, 0, -25), App.Rotation())
sketch14.addGeometry(Part.Circle(Vector(6.5, -82.5, 0), Vector(0, 0, 1), 0.5), False)
sketch14.addConstraint([
    Sketcher.Constraint("Diameter", 0, 1.0),
    Sketcher.Constraint("DistanceX", -1, 1, 0, 3, 6.5),
    Sketcher.Constraint("DistanceY", 0, 3, -1, 1, 82.5),
])
sketch14.setExpression("Constraints[0]", "Params.sketch14_diameter")
pocket8 = body.newObject("PartDesign::Pocket", "Pocket007")
pocket8.Profile = sketch14
pocket8.setExpression("Length", "Params.pocket8_length")
pocket8.Reversed = True
doc.recompute()

fillet2 = body.newObject("PartDesign::Fillet", "Fillet001")
fillet2.Base = (pocket8, edges_at(pocket8, [(-25, 6.5, -83)]))
fillet2.setExpression("Radius", "Params.fillet2_radius")

# Sketch on YZ plane
sketch15 = body.newObject("Sketcher::SketchObject", "Sketch014")
sketch15.AttachmentSupport = (doc.getObject("YZ_Plane"), [""])
sketch15.MapMode = "FlatFace"
sketch15.AttachmentOffset = App.Placement(Vector(0, 0, -25), App.Rotation())
sketch15.addGeometry(Part.Circle(Vector(9.6, -82.5, 0), Vector(0, 0, 1), 0.5), False)
sketch15.addConstraint([
    Sketcher.Constraint("Diameter", 0, 1.0),
    Sketcher.Constraint("DistanceY", 0, 3, -1, 1, 82.5),
    Sketcher.Constraint("DistanceX", -1, 1, 0, 3, 9.5843),
])
sketch15.setExpression("Constraints[0]", "Params.sketch15_diameter")
pocket9 = body.newObject("PartDesign::Pocket", "Pocket008")
pocket9.Profile = sketch15
pocket9.setExpression("Length", "Params.pocket9_length")
pocket9.Reversed = True

doc.recompute()
